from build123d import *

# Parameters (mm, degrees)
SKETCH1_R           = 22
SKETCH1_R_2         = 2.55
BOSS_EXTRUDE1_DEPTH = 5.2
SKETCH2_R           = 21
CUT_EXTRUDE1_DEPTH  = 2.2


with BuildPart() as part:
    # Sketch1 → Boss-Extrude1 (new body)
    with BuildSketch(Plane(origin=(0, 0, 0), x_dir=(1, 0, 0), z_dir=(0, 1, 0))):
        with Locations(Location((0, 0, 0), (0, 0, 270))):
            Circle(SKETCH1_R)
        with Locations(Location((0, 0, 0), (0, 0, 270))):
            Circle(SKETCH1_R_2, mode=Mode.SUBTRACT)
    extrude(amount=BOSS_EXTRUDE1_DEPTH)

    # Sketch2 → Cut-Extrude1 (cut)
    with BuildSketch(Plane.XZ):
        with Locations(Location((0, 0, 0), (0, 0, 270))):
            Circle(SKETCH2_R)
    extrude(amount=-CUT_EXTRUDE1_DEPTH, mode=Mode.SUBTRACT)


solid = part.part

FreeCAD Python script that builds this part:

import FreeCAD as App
import Part
import Sketcher
from FreeCAD import Vector
Q = App.Units.Quantity

doc = App.newDocument("Part")
params = doc.addObject("Spreadsheet::Sheet", "Params")
for row, (alias, value) in enumerate([
    ("sketch1_diameter", "44 mm"),
    ("sketch1_diameter2", "5.1 mm"),
    ("pad1_length", "5.2 mm"),
    ("sketch2_diameter", "42 mm"),
    ("pocket1_length", "2.2 mm"),
], start=1):
    params.set(f"A{row}", alias)
    params.set(f"B{row}", "=" + value)
    params.setAlias(f"B{row}", alias)

body = doc.addObject("PartDesign::Body", "Body")

# Sketch on XZ plane
sketch1 = body.newObject("Sketcher::SketchObject", "Sketch")
sketch1.AttachmentSupport = (doc.getObject("XZ_Plane"), [""])
sketch1.MapMode = "FlatFace"
sketch1.addGeometry([
    Part.Circle(Vector(0, 0, 0), Vector(0, 0, 1), 22),
    Part.Circle(Vector(0, 0, 0), Vector(0, 0, 1), 2.55),
], False)
sketch1.addConstraint([
    Sketcher.Constraint("Coincident", 0, 3, -1, 1),
    Sketcher.Constraint("Coincident", 1, 3, -1, 1),
    Sketcher.Constraint("Diameter", 0, Q("44 mm")),
    Sketcher.Constraint("Diameter", 1, Q("5.1 mm")),
])
sketch1.setExpression("Constraints[2]", "Params.sketch1_diameter")
sketch1.setExpression("Constraints[3]", "Params.sketch1_diameter2")
pad1 = body.newObject("PartDesign::Pad", "Pad")
pad1.Profile = sketch1
pad1.setExpression("Length", "Params.pad1_length")
pad1.Reversed = True

# Sketch on XZ plane
sketch2 = body.newObject("Sketcher::SketchObject", "Sketch001")
sketch2.AttachmentSupport = (doc.getObject("XZ_Plane"), [""])
sketch2.MapMode = "FlatFace"
sketch2.addGeometry(Part.Circle(Vector(0, 0, 0), Vector(0, 0, 1), 21), False)
sketch2.addConstraint([
    Sketcher.Constraint("Coincident", 0, 3, -1, 1),
    Sketcher.Constraint("Diameter", 0, Q("42 mm")),
])
sketch2.setExpression("Constraints[1]", "Params.sketch2_diameter")
pocket1 = body.newObject("PartDesign::Pocket", "Pocket")
pocket1.Profile = sketch2
pocket1.setExpression("Length", "Params.pocket1_length")

doc.recompute()
